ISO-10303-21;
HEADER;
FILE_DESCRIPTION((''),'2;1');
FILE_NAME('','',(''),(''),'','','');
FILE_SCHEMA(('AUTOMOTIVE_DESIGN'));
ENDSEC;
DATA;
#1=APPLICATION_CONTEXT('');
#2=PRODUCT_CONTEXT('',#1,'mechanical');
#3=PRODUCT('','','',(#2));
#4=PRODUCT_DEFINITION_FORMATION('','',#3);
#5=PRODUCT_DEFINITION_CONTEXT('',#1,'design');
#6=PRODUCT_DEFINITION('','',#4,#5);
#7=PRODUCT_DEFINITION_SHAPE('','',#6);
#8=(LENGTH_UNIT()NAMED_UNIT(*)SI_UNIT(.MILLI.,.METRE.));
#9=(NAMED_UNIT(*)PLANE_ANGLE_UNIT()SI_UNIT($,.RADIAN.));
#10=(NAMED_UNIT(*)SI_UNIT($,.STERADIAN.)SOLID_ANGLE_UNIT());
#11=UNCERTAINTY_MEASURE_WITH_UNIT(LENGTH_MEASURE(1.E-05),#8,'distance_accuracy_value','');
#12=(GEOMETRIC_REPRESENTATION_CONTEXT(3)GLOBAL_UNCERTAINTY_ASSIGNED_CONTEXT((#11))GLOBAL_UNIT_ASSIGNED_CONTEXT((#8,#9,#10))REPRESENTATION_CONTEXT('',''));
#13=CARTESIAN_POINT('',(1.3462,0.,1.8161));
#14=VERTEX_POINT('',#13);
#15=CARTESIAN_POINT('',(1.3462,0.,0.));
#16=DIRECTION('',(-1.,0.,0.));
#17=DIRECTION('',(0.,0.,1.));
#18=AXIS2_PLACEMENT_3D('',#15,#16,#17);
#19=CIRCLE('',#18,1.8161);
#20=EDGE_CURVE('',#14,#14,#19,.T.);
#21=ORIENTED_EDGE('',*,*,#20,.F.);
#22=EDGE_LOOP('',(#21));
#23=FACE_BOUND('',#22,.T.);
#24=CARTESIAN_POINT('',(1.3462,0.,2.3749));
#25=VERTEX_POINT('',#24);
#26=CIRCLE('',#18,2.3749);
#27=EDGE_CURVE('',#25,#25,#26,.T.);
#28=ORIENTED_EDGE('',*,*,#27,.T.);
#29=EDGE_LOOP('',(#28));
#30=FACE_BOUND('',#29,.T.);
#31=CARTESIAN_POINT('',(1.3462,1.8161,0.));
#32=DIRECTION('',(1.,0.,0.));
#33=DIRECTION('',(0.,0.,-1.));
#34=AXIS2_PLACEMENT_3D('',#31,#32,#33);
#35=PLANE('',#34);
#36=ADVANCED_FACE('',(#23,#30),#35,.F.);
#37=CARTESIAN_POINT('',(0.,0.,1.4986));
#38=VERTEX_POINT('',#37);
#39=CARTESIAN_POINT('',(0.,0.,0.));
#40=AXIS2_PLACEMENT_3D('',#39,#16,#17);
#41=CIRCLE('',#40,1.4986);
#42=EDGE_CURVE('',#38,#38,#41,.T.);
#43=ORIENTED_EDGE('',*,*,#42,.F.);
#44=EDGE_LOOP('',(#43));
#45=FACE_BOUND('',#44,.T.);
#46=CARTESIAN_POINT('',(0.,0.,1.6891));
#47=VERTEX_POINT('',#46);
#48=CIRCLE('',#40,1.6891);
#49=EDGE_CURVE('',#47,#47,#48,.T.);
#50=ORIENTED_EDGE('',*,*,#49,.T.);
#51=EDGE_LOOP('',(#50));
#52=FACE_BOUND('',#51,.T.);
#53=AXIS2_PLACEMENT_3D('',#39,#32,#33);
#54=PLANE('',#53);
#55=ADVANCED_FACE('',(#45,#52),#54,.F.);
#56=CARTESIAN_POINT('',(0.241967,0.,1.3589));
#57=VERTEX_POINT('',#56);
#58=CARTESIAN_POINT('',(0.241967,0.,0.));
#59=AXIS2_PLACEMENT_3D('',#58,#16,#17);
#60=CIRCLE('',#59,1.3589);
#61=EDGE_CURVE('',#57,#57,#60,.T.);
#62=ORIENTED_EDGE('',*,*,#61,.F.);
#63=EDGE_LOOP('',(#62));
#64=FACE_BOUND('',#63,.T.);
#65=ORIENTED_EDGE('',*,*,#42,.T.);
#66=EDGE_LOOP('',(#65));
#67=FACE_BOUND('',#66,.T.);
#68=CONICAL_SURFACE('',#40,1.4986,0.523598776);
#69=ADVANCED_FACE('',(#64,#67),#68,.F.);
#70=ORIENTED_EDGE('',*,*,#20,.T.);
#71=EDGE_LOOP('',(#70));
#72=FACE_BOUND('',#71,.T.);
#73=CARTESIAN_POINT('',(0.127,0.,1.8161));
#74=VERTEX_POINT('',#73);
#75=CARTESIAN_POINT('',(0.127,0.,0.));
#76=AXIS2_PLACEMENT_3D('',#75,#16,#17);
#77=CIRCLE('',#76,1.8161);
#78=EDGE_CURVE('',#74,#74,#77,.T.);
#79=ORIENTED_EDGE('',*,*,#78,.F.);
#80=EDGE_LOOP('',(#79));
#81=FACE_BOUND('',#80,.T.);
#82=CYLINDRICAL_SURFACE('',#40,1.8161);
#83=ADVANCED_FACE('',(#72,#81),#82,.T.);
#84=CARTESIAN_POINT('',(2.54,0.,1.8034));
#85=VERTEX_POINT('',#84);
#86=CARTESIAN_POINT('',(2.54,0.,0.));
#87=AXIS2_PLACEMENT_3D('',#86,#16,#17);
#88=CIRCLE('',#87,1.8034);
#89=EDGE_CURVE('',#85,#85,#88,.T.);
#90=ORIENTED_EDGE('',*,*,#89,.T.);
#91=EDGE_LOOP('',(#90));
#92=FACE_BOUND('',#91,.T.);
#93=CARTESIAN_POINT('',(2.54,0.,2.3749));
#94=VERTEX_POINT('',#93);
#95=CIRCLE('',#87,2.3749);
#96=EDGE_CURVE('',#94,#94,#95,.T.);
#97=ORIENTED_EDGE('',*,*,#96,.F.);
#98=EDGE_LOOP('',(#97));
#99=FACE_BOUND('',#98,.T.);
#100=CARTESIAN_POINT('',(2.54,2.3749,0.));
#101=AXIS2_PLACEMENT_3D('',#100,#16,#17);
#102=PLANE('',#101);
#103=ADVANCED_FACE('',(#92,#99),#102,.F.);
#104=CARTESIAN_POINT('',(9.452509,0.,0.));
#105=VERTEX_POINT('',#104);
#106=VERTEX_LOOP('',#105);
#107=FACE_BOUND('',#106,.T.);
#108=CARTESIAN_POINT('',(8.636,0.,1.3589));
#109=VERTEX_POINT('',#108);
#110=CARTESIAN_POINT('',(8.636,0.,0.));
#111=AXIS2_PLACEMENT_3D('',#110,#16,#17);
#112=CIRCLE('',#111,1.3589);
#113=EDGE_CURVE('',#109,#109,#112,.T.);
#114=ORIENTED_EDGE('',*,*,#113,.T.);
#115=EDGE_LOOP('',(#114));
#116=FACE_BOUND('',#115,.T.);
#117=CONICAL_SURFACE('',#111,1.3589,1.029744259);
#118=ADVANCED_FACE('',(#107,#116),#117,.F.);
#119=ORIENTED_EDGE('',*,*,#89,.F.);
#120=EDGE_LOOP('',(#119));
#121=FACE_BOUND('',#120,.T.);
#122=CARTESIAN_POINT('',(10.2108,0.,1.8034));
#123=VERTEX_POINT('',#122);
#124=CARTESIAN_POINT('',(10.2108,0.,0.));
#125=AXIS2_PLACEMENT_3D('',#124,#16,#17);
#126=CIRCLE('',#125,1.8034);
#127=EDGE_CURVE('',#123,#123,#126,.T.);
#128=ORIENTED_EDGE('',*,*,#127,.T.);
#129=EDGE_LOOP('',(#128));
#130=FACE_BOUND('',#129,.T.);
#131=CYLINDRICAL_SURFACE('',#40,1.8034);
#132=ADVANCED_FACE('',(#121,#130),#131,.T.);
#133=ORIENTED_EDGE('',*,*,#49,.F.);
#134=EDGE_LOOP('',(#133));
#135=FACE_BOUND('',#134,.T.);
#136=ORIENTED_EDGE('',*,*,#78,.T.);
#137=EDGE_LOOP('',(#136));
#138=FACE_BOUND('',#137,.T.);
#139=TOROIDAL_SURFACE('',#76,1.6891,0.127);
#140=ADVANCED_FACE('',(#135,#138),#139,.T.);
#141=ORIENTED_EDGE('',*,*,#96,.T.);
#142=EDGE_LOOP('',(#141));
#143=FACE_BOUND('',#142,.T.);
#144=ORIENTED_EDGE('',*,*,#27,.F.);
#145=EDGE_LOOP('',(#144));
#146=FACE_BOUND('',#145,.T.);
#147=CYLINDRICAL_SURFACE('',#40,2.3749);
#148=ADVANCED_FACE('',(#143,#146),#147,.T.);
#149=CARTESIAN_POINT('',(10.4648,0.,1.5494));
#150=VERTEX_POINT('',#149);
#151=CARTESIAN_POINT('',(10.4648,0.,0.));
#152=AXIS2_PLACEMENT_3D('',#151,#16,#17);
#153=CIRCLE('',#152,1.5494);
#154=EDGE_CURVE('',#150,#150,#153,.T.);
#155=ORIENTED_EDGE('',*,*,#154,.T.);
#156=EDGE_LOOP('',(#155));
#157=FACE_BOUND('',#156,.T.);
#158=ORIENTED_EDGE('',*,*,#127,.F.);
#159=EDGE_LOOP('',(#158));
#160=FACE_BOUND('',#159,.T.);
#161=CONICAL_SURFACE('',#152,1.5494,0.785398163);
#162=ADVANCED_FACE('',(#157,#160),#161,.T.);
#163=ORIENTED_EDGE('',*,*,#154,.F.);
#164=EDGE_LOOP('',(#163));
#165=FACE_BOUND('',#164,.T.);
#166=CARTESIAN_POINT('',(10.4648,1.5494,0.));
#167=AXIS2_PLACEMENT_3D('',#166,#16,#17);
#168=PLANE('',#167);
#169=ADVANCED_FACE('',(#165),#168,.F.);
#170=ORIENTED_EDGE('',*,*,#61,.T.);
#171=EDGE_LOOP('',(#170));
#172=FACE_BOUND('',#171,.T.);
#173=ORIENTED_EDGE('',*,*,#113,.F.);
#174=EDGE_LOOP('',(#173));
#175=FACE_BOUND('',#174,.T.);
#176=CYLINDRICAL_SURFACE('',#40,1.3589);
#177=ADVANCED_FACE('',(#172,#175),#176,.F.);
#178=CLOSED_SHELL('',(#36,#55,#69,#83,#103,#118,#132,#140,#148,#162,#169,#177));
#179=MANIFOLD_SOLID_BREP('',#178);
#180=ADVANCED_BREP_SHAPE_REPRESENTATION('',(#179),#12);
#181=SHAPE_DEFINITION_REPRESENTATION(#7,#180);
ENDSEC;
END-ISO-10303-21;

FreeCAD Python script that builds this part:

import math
import FreeCAD as App
import Part
import Sketcher
from FreeCAD import Vector
Q = App.Units.Quantity

doc = App.newDocument("Part")
params = doc.addObject("Spreadsheet::Sheet", "Params")
for row, (alias, value) in enumerate([
    ("sketch1_radius", "0.005 in"),
    ("sketch1_width", "0.048 in"),
    ("sketch1_width2", "0.412 in"),
    ("sketch1_width3", "0.302 in"),
    ("sketch1_height", "0.061 in"),
    ("revolution_angle", "360 deg"),
    ("sketch2_diameter", "0.107 in"),
    ("hole_diameter", "0.107 in"),
    ("hole_depth", "0.34 in"),
    ("hole_csink_diameter", "0.118 in"),
], start=1):
    params.set(f"A{row}", alias)
    params.set(f"B{row}", "=" + value)
    params.setAlias(f"B{row}", alias)

body = doc.addObject("PartDesign::Body", "Body")

# Sketch on XY plane
sketch1 = body.newObject("Sketcher::SketchObject", "Sketch")
sketch1.AttachmentSupport = (doc.getObject("XY_Plane"), [""])
sketch1.MapMode = "FlatFace"
sketch1.addGeometry([
    Part.LineSegment(Vector(1.35, 1.82, 0), Vector(0.13, 1.82, 0)),  # 0
    Part.ArcOfCircle(Part.Circle(Vector(0.13, 1.69, 0), Vector(0, 0, 1), 0.13), math.radians(90), math.radians(180)),  # 1
    Part.LineSegment(Vector(0, 1.69, 0), Vector(0, 0, 0)),  # 2
    Part.LineSegment(Vector(0, 0, 0), Vector(10.46, 0, 0)),  # 3
    Part.LineSegment(Vector(10.46, 0, 0), Vector(10.46, 1.55, 0)),  # 4
    Part.LineSegment(Vector(10.46, 1.55, 0), Vector(10.21, 1.8, 0)),  # 5
    Part.LineSegment(Vector(10.21, 1.8, 0), Vector(2.54, 1.8, 0)),  # 6
    Part.LineSegment(Vector(2.54, 1.8, 0), Vector(2.54, 2.37, 0)),  # 7
    Part.LineSegment(Vector(2.54, 2.37, 0), Vector(1.35, 2.37, 0)),  # 8
    Part.LineSegment(Vector(1.35, 2.37, 0), Vector(1.35, 1.82, 0)),  # 9
], False)
sketch1.addConstraint([
    Sketcher.Constraint("Tangent", 0, 2, 1, 1),
    Sketcher.Constraint("Tangent", 1, 2, 2, 1),
    Sketcher.Constraint("Coincident", 2, 2, 3, 1),
    Sketcher.Constraint("Coincident", 3, 2, 4, 1),
    Sketcher.Constraint("Coincident", 4, 2, 5, 1),
    Sketcher.Constraint("Coincident", 5, 2, 6, 1),
    Sketcher.Constraint("Coincident", 6, 2, 7, 1),
    Sketcher.Constraint("Coincident", 7, 2, 8, 1),
    Sketcher.Constraint("Coincident", 8, 2, 9, 1),
    Sketcher.Constraint("Coincident", 9, 2, 0, 1),
    Sketcher.Constraint("Horizontal", 0),
    Sketcher.Constraint("Vertical", 2),
    Sketcher.Constraint("Horizontal", 3),
    Sketcher.Constraint("Vertical", 4),
    Sketcher.Constraint("Horizontal", 6),
    Sketcher.Constraint("Vertical", 7),
    Sketcher.Constraint("Horizontal", 8),
    Sketcher.Constraint("Vertical", 9),
    Sketcher.Constraint("Coincident", 2, 2, -1, 1),
    Sketcher.Constraint("Angle", 5, Q("135 deg")),
    Sketcher.Constraint("Radius", 1, Q("0.005 in")),
    Sketcher.Constraint("DistanceX", -1, 1, 6, 2, Q("0.1 in")),
    Sketcher.Constraint("DistanceX", 0, 2, 0, 1, Q("0.048 in")),
    Sketcher.Constraint("DistanceX", 3, 1, 3, 2, Q("0.412 in")),
    Sketcher.Constraint("DistanceX", 6, 2, 6, 1, Q("0.302 in")),
    Sketcher.Constraint("DistanceY", 4, 1, 4, 2, Q("0.061 in")),
    Sketcher.Constraint("DistanceY", 9, 2, 9, 1, Q("0.022 in")),
    Sketcher.Constraint("DistanceY", 2, 2, 2, 1, Q("0.0665 in")),
])
sketch1.setExpression("Constraints[20]", "Params.sketch1_radius")
sketch1.setExpression("Constraints[22]", "Params.sketch1_width")
sketch1.setExpression("Constraints[23]", "Params.sketch1_width2")
sketch1.setExpression("Constraints[24]", "Params.sketch1_width3")
sketch1.setExpression("Constraints[25]", "Params.sketch1_height")
revolution = body.newObject("PartDesign::Revolution", "Revolution")
revolution.Profile = sketch1
revolution.ReferenceAxis = (sketch1, ["H_Axis"])
revolution.setExpression("Angle", "Params.revolution_angle")

# Sketch on YZ plane
sketch2 = body.newObject("Sketcher::SketchObject", "Sketch001")
sketch2.AttachmentSupport = (doc.getObject("YZ_Plane"), [""])
sketch2.MapMode = "FlatFace"
sketch2.addGeometry(Part.Circle(Vector(0, 0, 0), Vector(0, 0, 1), 1.4), False)
sketch2.addConstraint([
    Sketcher.Constraint("Coincident", 0, 3, -1, 1),
    Sketcher.Constraint("Diameter", 0, Q("0.107 in")),
])
sketch2.setExpression("Constraints[1]", "Params.sketch2_diameter")
doc.recompute()
hole = body.newObject("PartDesign::Hole", "Hole")
hole.Profile = sketch2
hole.ThreadType = "None"
hole.setExpression("Diameter", "Params.hole_diameter")
hole.DepthType = "Dimension"
hole.setExpression("Depth", "Params.hole_depth")
hole.DrillPoint = "Angled"
hole.DrillPointAngle = 118
hole.HoleCutType = "Countersink"
hole.setExpression("HoleCutDiameter", "Params.hole_csink_diameter")
hole.HoleCutCountersinkAngle = 60
hole.Reversed = True

doc.recompute()
